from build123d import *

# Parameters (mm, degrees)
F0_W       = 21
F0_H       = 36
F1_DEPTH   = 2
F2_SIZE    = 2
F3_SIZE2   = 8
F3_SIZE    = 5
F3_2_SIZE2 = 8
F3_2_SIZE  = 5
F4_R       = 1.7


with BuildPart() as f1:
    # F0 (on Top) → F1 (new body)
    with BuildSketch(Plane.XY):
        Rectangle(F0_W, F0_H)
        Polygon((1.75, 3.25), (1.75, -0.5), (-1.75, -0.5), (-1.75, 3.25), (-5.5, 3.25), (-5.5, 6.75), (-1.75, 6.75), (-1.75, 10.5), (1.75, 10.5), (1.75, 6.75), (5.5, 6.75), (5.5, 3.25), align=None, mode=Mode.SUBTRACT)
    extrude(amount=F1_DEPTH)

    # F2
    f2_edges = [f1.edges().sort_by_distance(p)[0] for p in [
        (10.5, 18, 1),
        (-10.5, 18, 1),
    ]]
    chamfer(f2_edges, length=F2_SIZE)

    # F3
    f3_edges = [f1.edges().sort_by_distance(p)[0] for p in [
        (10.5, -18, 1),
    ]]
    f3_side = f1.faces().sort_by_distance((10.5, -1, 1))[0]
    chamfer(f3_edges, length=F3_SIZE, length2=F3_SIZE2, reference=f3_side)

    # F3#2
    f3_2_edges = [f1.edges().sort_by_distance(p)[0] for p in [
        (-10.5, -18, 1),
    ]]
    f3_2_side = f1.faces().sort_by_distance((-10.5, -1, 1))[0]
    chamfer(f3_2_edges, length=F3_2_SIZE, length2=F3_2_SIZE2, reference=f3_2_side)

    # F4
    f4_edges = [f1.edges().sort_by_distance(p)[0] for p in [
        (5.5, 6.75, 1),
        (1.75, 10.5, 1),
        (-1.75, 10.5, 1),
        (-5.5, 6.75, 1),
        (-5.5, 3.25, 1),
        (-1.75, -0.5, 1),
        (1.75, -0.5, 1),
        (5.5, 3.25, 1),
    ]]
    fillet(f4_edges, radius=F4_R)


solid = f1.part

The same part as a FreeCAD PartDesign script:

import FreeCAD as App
import Part
import Sketcher

V = App.Vector
Q = App.Units.Quantity


def edges_at(feature, points):
    """Names of the edges that pass closest to the given points."""
    edges = feature.Shape.Edges
    near = lambda p: min(range(len(edges)), key=lambda i: edges[i].distToShape(Part.Vertex(*p))[0])
    return sorted({f"Edge{near(p) + 1}" for p in points})


def add_polygon(sketch, points):
    """Adds a closed chain of lines whose ends are joined by coincident constraints."""
    first, n = sketch.GeometryCount, len(points)
    for a, b in zip(points, points[1:] + points[:1]):
        sketch.addGeometry(Part.LineSegment(App.Vector(*a, 0), App.Vector(*b, 0)), False)
    for i in range(n):
        sketch.addConstraint(Sketcher.Constraint("Coincident", first + i, 2, first + (i + 1) % n, 1))

doc = App.newDocument("Part")
body = doc.addObject("PartDesign::Body", "Body")

# Sketch on XY plane
sketch1 = body.newObject("Sketcher::SketchObject", "Sketch")
sketch1.AttachmentSupport = (doc.getObject("XY_Plane"), [""])
sketch1.MapMode = "FlatFace"
add_polygon(sketch1, [(-10.5, 18), (-10.5, -18), (10.5, -18), (10.5, 18)])  # lines 0-3
add_polygon(sketch1, [(5.5, 3.2), (1.8, 3.2), (1.8, -0.5), (-1.8, -0.5), (-1.8, 3.2), (-5.5, 3.2), (-5.5, 6.8), (-1.8, 6.8), (-1.8, 10.5), (1.8, 10.5), (1.8, 6.8), (5.5, 6.8)])  # lines 4-15
sketch1.addConstraint(Sketcher.Constraint("Vertical", 0))
sketch1.addConstraint(Sketcher.Constraint("Horizontal", 1))
sketch1.addConstraint(Sketcher.Constraint("Vertical", 2))
sketch1.addConstraint(Sketcher.Constraint("Horizontal", 3))
sketch1.addConstraint(Sketcher.Constraint("Horizontal", 4))
sketch1.addConstraint(Sketcher.Constraint("Vertical", 5))
sketch1.addConstraint(Sketcher.Constraint("Horizontal", 6))
sketch1.addConstraint(Sketcher.Constraint("Vertical", 7))
sketch1.addConstraint(Sketcher.Constraint("Horizontal", 8))
sketch1.addConstraint(Sketcher.Constraint("Vertical", 9))
sketch1.addConstraint(Sketcher.Constraint("Horizontal", 10))
sketch1.addConstraint(Sketcher.Constraint("Vertical", 11))
sketch1.addConstraint(Sketcher.Constraint("Horizontal", 12))
sketch1.addConstraint(Sketcher.Constraint("Vertical", 13))
sketch1.addConstraint(Sketcher.Constraint("Horizontal", 14))
sketch1.addConstraint(Sketcher.Constraint("Vertical", 15))
sketch1.addConstraint(Sketcher.Constraint("Symmetric", 0, 2, 2, 2, -1, 1))
sketch1.addConstraint(Sketcher.Constraint("Symmetric", 4, 2, 7, 2, -2))
sketch1.addConstraint(Sketcher.Constraint("Symmetric", 10, 2, 13, 2, -2))
sketch1.addConstraint(Sketcher.Constraint("Vertical", 7, 2, 10, 2))
sketch1.addConstraint(Sketcher.Constraint("Equal", 4, 8))
sketch1.addConstraint(Sketcher.Constraint("Equal", 14, 5))
sketch1.addConstraint(Sketcher.Constraint("Equal", 12, 9))
sketch1.addConstraint(Sketcher.Constraint("Equal", 7, 11))
sketch1.addConstraint(Sketcher.Constraint("DistanceX", 1, 1, 1, 2, Q("21 mm")))
sketch1.addConstraint(Sketcher.Constraint("DistanceY", 0, 2, 0, 1, Q("36 mm")))
sketch1.addConstraint(Sketcher.Constraint("DistanceX", 6, 2, 6, 1, Q("3.5 mm")))
sketch1.addConstraint(Sketcher.Constraint("DistanceX", 3, 2, 8, 2, Q("5 mm")))
sketch1.addConstraint(Sketcher.Constraint("DistanceY", 5, 2, -1, 1, Q("0.5 mm")))
pad1 = body.newObject("PartDesign::Pad", "Pad")
pad1.Profile = sketch1
pad1.Length = 2
doc.recompute()

chamfer = body.newObject("PartDesign::Chamfer", "Chamfer")
chamfer.Base = (pad1, edges_at(pad1, [(10.5, 18, 1), (-10.5, 18, 1)]))
chamfer.Size = 2
doc.recompute()

chamfer2 = body.newObject("PartDesign::Chamfer", "Chamfer001")
chamfer2.Base = (chamfer, edges_at(chamfer, [(10.5, -18, 1)]))
chamfer2.ChamferType = "Two distances"
chamfer2.Size = 5
chamfer2.Size2 = 8
chamfer2.FlipDirection = True
doc.recompute()

chamfer3 = body.newObject("PartDesign::Chamfer", "Chamfer002")
chamfer3.Base = (chamfer2, edges_at(chamfer2, [(-10.5, -18, 1)]))
chamfer3.ChamferType = "Two distances"
chamfer3.Size = 5
chamfer3.Size2 = 8
chamfer3.FlipDirection = True
doc.recompute()

fillet = body.newObject("PartDesign::Fillet", "Fillet")
fillet.Base = (chamfer3, edges_at(chamfer3, [
    (5.5, 6.75, 1),
    (1.75, 10.5, 1),
    (-1.75, 10.5, 1),
    (-5.5, 6.75, 1),
    (-5.5, 3.25, 1),
    (-1.75, -0.5, 1),
    (1.75, -0.5, 1),
    (5.5, 3.25, 1),
]))
fillet.Radius = 1.7

doc.recompute()
